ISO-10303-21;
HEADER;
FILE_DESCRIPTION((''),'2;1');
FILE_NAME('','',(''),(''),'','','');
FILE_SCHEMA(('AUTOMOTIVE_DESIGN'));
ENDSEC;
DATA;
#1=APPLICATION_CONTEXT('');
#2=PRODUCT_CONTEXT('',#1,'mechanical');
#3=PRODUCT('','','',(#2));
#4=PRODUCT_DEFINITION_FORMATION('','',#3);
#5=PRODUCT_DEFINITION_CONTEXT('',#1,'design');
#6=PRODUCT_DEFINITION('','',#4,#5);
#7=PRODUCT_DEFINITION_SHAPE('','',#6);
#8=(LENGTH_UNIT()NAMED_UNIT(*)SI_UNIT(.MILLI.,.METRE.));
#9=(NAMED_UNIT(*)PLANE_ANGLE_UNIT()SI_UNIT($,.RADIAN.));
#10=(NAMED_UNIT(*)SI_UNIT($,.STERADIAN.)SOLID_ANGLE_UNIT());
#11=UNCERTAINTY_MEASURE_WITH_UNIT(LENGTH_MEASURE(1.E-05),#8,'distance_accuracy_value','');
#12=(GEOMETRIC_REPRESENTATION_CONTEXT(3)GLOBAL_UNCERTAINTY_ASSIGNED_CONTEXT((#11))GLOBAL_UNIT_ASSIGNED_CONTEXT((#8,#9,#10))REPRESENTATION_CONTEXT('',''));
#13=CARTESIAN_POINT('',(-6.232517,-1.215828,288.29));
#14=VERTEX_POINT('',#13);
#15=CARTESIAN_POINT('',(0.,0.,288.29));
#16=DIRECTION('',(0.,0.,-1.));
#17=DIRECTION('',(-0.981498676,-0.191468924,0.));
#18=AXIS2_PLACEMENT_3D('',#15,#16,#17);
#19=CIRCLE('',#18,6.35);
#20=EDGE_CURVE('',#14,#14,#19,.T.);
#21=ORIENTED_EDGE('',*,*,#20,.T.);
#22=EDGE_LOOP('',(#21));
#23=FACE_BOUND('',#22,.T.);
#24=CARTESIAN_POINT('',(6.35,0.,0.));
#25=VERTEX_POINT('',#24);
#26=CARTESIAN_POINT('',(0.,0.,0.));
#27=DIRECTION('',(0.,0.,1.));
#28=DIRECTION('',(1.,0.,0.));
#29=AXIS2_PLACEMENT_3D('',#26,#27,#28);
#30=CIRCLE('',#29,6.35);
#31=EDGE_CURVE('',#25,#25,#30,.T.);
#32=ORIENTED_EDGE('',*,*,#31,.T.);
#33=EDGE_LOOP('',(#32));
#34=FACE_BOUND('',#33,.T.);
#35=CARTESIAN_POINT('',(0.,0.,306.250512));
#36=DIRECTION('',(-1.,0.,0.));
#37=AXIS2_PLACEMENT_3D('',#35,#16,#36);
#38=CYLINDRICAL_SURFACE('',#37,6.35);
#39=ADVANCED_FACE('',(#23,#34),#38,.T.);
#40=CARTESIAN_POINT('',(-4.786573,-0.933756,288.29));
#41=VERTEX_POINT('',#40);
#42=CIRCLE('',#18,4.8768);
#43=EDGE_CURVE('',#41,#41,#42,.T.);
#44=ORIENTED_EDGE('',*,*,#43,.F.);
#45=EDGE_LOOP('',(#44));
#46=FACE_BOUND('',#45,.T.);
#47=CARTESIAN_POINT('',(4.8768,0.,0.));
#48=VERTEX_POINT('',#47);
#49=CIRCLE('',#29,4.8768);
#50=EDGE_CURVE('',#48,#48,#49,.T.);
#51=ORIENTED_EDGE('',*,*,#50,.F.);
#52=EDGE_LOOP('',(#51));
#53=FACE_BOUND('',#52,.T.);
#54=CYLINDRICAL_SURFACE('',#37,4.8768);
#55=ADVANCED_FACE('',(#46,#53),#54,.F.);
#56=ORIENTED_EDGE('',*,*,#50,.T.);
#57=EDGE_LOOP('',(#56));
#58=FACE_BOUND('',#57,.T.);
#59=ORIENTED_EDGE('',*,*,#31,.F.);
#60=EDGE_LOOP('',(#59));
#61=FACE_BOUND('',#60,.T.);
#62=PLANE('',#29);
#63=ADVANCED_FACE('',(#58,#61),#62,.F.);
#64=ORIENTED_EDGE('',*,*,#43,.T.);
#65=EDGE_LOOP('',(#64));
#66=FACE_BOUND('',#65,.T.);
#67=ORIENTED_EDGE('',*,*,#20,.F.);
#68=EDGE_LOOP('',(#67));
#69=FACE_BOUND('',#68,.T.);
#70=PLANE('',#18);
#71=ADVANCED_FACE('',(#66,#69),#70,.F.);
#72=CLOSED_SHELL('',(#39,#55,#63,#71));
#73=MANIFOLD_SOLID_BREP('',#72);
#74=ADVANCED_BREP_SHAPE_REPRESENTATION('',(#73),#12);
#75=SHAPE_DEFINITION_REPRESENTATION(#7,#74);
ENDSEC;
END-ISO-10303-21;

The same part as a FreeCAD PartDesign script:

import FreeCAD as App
import Part
import Sketcher
from FreeCAD import Vector
Q = App.Units.Quantity

doc = App.newDocument("Part")
body = doc.addObject("PartDesign::Body", "Body")

# Sketch on XY plane
sketch1 = body.newObject("Sketcher::SketchObject", "Sketch")
sketch1.AttachmentSupport = (doc.getObject("XY_Plane"), [""])
sketch1.MapMode = "FlatFace"
sketch1.addGeometry(Part.Circle(Vector(0, 0, 0), Vector(0, 0, 1), 6.3), False)
sketch1.addGeometry(Part.Circle(Vector(0, 0, 0), Vector(0, 0, 1), 4.9), False)
sketch1.addConstraint(Sketcher.Constraint("Coincident", 0, 3, -1, 1))
sketch1.addConstraint(Sketcher.Constraint("Coincident", 1, 3, -1, 1))
sketch1.addConstraint(Sketcher.Constraint("Diameter", 0, Q("0.5 in")))
sketch1.addConstraint(Sketcher.Constraint("Diameter", 1, Q("0.384 in")))
pad1 = body.newObject("PartDesign::Pad", "Pad")
pad1.Profile = sketch1
pad1.Length = Q("11.35 in")

doc.recompute()
